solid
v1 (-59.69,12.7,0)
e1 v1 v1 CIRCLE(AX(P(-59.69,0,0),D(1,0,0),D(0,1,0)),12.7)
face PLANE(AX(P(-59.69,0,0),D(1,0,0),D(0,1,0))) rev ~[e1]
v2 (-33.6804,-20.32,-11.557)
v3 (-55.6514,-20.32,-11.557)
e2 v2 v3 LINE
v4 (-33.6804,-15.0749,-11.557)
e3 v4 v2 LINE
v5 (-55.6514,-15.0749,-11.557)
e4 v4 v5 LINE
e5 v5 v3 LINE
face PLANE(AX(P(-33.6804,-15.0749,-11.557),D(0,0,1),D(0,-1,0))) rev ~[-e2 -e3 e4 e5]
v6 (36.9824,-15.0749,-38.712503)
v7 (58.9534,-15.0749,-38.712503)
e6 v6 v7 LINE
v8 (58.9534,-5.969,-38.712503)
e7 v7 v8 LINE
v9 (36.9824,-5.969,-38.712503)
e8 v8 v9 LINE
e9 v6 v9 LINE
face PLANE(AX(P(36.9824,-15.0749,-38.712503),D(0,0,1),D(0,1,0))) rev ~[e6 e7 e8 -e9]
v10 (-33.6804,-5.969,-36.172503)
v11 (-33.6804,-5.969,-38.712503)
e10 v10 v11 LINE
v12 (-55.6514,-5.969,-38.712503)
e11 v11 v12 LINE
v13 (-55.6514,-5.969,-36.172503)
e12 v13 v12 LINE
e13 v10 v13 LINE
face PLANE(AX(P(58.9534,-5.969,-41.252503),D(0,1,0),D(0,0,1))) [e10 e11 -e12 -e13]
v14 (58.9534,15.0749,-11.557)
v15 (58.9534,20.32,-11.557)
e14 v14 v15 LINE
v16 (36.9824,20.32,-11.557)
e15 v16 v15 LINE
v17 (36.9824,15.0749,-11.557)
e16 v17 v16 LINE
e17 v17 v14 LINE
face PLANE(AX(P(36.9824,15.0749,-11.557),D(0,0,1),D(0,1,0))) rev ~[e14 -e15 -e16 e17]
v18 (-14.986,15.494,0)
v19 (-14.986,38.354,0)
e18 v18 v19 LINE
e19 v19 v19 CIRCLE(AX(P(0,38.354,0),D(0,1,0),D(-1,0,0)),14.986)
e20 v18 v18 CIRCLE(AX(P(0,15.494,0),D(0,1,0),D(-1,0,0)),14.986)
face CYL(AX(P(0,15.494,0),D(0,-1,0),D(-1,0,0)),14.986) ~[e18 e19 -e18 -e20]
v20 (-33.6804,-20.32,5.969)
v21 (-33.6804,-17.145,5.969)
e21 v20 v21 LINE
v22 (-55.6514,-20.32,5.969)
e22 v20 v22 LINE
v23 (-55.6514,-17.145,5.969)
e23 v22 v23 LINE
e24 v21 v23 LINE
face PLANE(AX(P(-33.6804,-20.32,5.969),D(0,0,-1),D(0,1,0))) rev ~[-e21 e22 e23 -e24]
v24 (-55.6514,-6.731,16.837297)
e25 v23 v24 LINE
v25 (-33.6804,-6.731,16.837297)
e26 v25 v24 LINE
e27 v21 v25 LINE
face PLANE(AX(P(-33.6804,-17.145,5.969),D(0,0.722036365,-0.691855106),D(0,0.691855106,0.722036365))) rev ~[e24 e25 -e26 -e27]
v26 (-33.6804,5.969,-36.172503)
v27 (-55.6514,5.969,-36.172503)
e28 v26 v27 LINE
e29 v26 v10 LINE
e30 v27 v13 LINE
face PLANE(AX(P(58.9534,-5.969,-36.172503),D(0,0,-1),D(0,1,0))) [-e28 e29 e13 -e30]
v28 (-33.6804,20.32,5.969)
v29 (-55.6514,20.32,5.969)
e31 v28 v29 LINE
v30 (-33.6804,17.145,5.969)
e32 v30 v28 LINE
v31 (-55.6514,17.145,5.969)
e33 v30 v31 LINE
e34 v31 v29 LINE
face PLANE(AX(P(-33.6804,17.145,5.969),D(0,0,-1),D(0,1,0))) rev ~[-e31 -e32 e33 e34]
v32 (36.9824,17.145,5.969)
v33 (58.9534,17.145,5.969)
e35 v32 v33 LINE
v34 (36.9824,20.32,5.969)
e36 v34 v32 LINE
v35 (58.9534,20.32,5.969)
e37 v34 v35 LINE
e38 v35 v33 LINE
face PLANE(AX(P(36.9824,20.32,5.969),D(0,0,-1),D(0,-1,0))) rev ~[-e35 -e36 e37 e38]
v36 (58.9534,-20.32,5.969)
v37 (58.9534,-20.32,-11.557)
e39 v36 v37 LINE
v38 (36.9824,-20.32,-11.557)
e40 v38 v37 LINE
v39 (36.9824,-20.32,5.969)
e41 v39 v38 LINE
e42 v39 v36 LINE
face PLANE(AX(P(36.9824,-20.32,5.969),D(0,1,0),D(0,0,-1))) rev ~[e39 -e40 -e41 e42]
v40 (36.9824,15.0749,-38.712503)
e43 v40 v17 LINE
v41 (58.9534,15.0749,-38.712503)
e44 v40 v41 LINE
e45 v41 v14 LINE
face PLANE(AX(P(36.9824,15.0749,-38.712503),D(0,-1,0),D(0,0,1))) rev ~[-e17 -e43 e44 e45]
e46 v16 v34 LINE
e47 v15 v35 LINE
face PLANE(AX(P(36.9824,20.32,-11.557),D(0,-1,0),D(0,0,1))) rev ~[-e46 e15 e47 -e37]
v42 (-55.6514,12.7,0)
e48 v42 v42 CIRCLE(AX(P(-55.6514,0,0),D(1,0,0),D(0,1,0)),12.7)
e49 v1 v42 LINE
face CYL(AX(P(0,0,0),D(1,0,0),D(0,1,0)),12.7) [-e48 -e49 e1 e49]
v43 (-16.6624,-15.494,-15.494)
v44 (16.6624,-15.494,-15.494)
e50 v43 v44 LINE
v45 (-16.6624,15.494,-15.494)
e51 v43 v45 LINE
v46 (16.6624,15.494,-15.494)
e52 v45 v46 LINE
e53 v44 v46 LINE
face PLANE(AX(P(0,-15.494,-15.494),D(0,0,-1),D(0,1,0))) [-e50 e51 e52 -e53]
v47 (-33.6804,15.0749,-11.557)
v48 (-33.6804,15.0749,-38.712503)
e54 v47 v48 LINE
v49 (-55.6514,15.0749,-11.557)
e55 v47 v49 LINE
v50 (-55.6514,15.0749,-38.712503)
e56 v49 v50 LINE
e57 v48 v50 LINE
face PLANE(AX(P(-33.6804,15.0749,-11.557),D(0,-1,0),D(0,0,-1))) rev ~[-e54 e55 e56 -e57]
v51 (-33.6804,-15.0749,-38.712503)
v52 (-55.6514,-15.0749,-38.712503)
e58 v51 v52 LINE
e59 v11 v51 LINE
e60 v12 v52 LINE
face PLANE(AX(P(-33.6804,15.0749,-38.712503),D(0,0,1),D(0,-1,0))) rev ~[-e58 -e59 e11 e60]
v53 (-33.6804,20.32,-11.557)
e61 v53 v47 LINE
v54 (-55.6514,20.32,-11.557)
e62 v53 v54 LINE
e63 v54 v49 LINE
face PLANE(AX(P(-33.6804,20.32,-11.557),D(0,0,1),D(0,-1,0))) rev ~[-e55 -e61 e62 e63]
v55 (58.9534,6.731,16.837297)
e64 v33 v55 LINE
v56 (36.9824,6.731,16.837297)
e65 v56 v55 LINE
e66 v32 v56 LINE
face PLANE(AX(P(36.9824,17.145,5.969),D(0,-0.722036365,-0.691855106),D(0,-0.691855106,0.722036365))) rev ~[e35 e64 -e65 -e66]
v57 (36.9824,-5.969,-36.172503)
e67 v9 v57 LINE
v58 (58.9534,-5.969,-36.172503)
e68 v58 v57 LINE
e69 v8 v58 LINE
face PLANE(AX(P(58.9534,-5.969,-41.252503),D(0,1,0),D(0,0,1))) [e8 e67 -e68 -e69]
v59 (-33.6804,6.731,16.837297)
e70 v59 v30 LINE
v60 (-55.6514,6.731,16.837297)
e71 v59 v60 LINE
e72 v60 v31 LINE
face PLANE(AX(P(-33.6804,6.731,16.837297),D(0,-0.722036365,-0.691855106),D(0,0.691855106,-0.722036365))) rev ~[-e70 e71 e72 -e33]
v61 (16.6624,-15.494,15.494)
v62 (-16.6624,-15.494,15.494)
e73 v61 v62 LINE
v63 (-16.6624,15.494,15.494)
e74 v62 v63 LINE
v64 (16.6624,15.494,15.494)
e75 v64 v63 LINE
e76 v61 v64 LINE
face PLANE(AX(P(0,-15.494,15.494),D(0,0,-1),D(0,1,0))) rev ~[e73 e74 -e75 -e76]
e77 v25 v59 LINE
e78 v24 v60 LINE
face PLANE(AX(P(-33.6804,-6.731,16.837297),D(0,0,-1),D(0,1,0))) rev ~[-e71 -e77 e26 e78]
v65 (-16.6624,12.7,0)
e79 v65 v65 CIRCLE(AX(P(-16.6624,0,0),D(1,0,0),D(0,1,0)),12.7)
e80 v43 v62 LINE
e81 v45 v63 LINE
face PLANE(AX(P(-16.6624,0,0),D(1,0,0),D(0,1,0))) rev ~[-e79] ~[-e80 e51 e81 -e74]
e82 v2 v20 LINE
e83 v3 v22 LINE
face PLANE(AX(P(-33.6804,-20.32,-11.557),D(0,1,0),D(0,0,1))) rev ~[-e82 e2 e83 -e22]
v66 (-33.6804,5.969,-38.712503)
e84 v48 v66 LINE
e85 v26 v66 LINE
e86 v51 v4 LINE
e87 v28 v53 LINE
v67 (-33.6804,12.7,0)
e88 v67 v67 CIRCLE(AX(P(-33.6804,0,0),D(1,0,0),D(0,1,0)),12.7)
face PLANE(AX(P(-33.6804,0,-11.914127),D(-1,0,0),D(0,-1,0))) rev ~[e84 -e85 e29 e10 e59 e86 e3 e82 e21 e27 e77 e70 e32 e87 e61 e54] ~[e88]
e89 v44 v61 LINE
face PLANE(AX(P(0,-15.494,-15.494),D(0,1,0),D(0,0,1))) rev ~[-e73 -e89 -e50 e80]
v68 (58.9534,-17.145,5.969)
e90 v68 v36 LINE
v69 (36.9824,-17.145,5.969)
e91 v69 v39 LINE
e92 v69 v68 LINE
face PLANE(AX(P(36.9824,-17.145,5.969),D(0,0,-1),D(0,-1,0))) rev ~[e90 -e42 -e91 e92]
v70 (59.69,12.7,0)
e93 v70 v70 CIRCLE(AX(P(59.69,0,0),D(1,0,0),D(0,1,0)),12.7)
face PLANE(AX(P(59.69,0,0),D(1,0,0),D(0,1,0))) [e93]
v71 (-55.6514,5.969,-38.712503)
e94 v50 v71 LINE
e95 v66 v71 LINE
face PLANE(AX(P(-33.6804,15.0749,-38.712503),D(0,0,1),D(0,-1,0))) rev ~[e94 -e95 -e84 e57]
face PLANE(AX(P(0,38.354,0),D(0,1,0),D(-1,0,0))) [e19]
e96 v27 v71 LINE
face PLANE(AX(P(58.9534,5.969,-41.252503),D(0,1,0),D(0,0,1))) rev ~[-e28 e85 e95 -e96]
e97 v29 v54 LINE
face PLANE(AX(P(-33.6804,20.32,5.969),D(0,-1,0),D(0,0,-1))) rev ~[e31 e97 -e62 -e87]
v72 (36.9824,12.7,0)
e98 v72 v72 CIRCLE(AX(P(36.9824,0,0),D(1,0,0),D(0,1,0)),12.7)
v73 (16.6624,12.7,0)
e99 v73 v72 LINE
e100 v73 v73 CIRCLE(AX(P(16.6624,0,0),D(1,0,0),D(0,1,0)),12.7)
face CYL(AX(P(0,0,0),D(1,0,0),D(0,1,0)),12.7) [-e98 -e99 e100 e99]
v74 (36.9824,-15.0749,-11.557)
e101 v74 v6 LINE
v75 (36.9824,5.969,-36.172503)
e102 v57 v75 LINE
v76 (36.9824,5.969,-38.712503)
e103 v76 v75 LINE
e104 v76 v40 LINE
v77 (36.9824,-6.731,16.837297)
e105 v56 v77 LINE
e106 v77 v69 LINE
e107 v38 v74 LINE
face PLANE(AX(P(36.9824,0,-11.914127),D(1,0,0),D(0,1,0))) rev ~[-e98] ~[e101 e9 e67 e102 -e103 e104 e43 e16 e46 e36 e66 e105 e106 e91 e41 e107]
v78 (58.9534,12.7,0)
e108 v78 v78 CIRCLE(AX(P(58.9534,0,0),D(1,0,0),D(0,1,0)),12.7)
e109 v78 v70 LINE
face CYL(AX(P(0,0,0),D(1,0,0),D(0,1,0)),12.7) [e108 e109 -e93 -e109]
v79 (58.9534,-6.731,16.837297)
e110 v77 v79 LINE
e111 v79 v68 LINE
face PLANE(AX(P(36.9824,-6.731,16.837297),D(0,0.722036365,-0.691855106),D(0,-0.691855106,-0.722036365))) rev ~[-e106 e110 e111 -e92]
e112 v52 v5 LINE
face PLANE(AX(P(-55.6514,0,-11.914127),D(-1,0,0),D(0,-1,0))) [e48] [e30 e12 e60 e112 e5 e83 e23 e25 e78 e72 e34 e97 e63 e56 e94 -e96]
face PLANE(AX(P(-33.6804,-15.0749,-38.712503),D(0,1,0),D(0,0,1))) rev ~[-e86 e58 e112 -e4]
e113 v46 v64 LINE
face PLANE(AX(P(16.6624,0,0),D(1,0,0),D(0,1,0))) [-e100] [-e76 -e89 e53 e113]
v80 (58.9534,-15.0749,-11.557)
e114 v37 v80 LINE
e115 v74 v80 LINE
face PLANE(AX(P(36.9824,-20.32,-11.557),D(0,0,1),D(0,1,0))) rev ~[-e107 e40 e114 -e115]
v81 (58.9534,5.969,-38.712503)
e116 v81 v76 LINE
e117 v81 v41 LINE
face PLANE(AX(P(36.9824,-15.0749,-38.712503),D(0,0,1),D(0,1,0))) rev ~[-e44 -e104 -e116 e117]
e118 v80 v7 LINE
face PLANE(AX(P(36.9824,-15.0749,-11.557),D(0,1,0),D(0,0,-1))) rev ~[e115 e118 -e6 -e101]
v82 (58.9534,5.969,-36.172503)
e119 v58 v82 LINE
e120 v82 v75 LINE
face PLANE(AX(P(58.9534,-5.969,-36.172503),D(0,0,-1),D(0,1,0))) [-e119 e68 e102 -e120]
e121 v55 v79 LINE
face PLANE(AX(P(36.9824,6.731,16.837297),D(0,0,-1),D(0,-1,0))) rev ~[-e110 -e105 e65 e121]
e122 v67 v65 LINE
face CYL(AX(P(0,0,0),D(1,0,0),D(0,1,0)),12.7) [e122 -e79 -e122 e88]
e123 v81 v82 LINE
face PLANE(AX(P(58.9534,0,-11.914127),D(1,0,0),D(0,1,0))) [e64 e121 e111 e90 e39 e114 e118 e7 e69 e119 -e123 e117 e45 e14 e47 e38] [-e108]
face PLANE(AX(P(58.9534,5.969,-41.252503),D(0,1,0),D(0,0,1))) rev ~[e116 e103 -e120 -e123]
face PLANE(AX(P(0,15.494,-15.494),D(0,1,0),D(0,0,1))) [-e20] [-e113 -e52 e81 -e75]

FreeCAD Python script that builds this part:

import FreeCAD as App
import Part
import Sketcher
from FreeCAD import Vector
Q = App.Units.Quantity


def add_polygon(sketch, points):
    """Adds a closed chain of lines whose ends are joined by coincident constraints."""
    first, n = sketch.GeometryCount, len(points)
    for a, b in zip(points, points[1:] + points[:1]):
        sketch.addGeometry(Part.LineSegment(App.Vector(*a, 0), App.Vector(*b, 0)), False)
    for i in range(n):
        sketch.addConstraint(Sketcher.Constraint("Coincident", first + i, 2, first + (i + 1) % n, 1))

doc = App.newDocument("Part")
body = doc.addObject("PartDesign::Body", "Body")

sketch1 = body.newObject("Sketcher::SketchObject", "Sketch")
sketch1.AttachmentSupport = (doc.getObject("YZ_Plane"), [""])
sketch1.MapMode = "FlatFace"
sketch1.addGeometry(Part.Circle(Vector(0, 0, 0), Vector(0, 0, 1), 13), False)
sketch1.addConstraint(Sketcher.Constraint("Coincident", 0, 3, -1, 1))
sketch1.addConstraint(Sketcher.Constraint("Diameter", 0, Q("1 in")))
pad1 = body.newObject("PartDesign::Pad", "Pad")
pad1.Profile = sketch1
pad1.Length = Q("4.7 in")
pad1.Midplane = True

sketch2 = body.newObject("Sketcher::SketchObject", "Sketch001")
sketch2.AttachmentSupport = (doc.getObject("YZ_Plane"), [""])
sketch2.MapMode = "FlatFace"
add_polygon(sketch2, [(-15, 15), (-15, -15), (15, -15), (15, 15)])
sketch2.addConstraint(Sketcher.Constraint("Vertical", 0))
sketch2.addConstraint(Sketcher.Constraint("Horizontal", 1))
sketch2.addConstraint(Sketcher.Constraint("Vertical", 2))
sketch2.addConstraint(Sketcher.Constraint("Horizontal", 3))
sketch2.addConstraint(Sketcher.Constraint("Symmetric", 0, 2, 2, 2, -1, 1))
sketch2.addConstraint(Sketcher.Constraint("Equal", 3, 0))
sketch2.addConstraint(Sketcher.Constraint("DistanceX", 1, 1, 1, 2, Q("1.22 in")))
pad2 = body.newObject("PartDesign::Pad", "Pad001")
pad2.Profile = sketch2
pad2.Length = Q("1.312 in")
pad2.Midplane = True

sketch3 = body.newObject("Sketcher::SketchObject", "Sketch002")
sketch3.AttachmentSupport = (doc.getObject("YZ_Plane"), [""])
sketch3.MapMode = "FlatFace"
sketch3.AttachmentOffset = App.Placement(Vector(0, 0, 1.456 * 25.4), App.Rotation())
add_polygon(sketch3, [(-20.3, 6), (-20.3, -11.6), (-15.1, -11.6), (-15.1, -38.7), (15.1, -38.7), (15.1, -11.6), (20.3, -11.6), (20.3, 6), (17.1, 6), (6.7, 16.8), (-6.7, 16.8), (-17.1, 6)])
sketch3.addConstraint(Sketcher.Constraint("Vertical", 0))
sketch3.addConstraint(Sketcher.Constraint("Horizontal", 1))
sketch3.addConstraint(Sketcher.Constraint("Vertical", 2))
sketch3.addConstraint(Sketcher.Constraint("Horizontal", 3))
sketch3.addConstraint(Sketcher.Constraint("Vertical", 4))
sketch3.addConstraint(Sketcher.Constraint("Horizontal", 5))
sketch3.addConstraint(Sketcher.Constraint("Vertical", 6))
sketch3.addConstraint(Sketcher.Constraint("Horizontal", 7))
sketch3.addConstraint(Sketcher.Constraint("Horizontal", 9))
sketch3.addConstraint(Sketcher.Constraint("Horizontal", 11))
sketch3.addConstraint(Sketcher.Constraint("Symmetric", 1, 2, 4, 2, -2))
sketch3.addConstraint(Sketcher.Constraint("Symmetric", 7, 2, 10, 2, -2))
sketch3.addConstraint(Sketcher.Constraint("Equal", 1, 5))
sketch3.addConstraint(Sketcher.Constraint("Equal", 8, 10))
sketch3.addConstraint(Sketcher.Constraint("DistanceX", 9, 2, 9, 1, Q("0.53 in")))
sketch3.addConstraint(Sketcher.Constraint("DistanceY", 0, 2, 0, 1, Q("0.69 in")))
sketch3.addConstraint(Sketcher.Constraint("DistanceX", 0, 2, -1, 1, Q("0.8 in")))
sketch3.addConstraint(Sketcher.Constraint("DistanceX", 3, 1, 3, 2, Q("1.187 in")))
sketch3.addConstraint(Sketcher.Constraint("DistanceX", 7, 2, 7, 1, Q("0.125 in")))
sketch3.addConstraint(Sketcher.Constraint("DistanceY", 0, 2, -1, 1, Q("0.455 in")))
sketch3.addConstraint(Sketcher.Constraint("DistanceY", 2, 2, 2, 1, 27.155503))
sketch3.addConstraint(Sketcher.Constraint("Distance", 8, 15.052285))
pad3 = body.newObject("PartDesign::Pad", "Pad002")
pad3.Profile = sketch3
pad3.Length = Q("0.865 in")

sketch4 = body.newObject("Sketcher::SketchObject", "Sketch003")
sketch4.AttachmentSupport = (doc.getObject("YZ_Plane"), [""])
sketch4.MapMode = "FlatFace"
sketch4.AttachmentOffset = App.Placement(Vector(0, 0, -1.326 * 25.4), App.Rotation())
add_polygon(sketch4, [(15.1, -38.7), (-15.1, -38.7), (-15.1, -11.6), (-20.3, -11.6), (-20.3, 6), (-17.1, 6), (-6.7, 16.8), (6.7, 16.8), (17.1, 6), (20.3, 6), (20.3, -11.6), (15.1, -11.6)])
sketch4.addConstraint(Sketcher.Constraint("Horizontal", 0))
sketch4.addConstraint(Sketcher.Constraint("Vertical", 1))
sketch4.addConstraint(Sketcher.Constraint("Horizontal", 2))
sketch4.addConstraint(Sketcher.Constraint("Vertical", 3))
sketch4.addConstraint(Sketcher.Constraint("Horizontal", 4))
sketch4.addConstraint(Sketcher.Constraint("Horizontal", 6))
sketch4.addConstraint(Sketcher.Constraint("Horizontal", 8))
sketch4.addConstraint(Sketcher.Constraint("Vertical", 9))
sketch4.addConstraint(Sketcher.Constraint("Horizontal", 10))
sketch4.addConstraint(Sketcher.Constraint("Vertical", 11))
sketch4.addConstraint(Sketcher.Constraint("Symmetric", 4, 2, 7, 2, -2))
sketch4.addConstraint(Sketcher.Constraint("Symmetric", 2, 2, 9, 2, -2))
sketch4.addConstraint(Sketcher.Constraint("Equal", 2, 10))
sketch4.addConstraint(Sketcher.Constraint("Equal", 5, 7))
sketch4.addConstraint(Sketcher.Constraint("DistanceX", 6, 1, 6, 2, Q("0.53 in")))
sketch4.addConstraint(Sketcher.Constraint("DistanceY", 3, 1, 3, 2, Q("0.69 in")))
sketch4.addConstraint(Sketcher.Constraint("DistanceX", 2, 2, -1, 1, Q("0.8 in")))
sketch4.addConstraint(Sketcher.Constraint("DistanceX", 0, 2, 0, 1, Q("1.187 in")))
sketch4.addConstraint(Sketcher.Constraint("DistanceX", 4, 1, 4, 2, Q("0.125 in")))
sketch4.addConstraint(Sketcher.Constraint("DistanceY", 1, 2, -1, 1, Q("0.455 in")))
sketch4.addConstraint(Sketcher.Constraint("DistanceY", 0, 2, 5, 2, Q("2.187 in")))
sketch4.addConstraint(Sketcher.Constraint("DistanceY", 1, 1, 1, 2, 27.155503))
pad4 = body.newObject("PartDesign::Pad", "Pad003")
pad4.Profile = sketch4
pad4.Length = Q("0.865 in")
pad4.Reversed = True

sketch5 = body.newObject("Sketcher::SketchObject", "Sketch004")
sketch5.AttachmentSupport = (doc.getObject("XZ_Plane"), [""])
sketch5.MapMode = "FlatFace"
sketch5.AttachmentOffset = App.Placement(Vector(0, 0, -0.61 * 25.4), App.Rotation())
sketch5.addGeometry(Part.Circle(Vector(0, 0, 0), Vector(0, 0, 1), 15), False)
sketch5.addConstraint(Sketcher.Constraint("Coincident", 0, 3, -1, 1))
sketch5.addConstraint(Sketcher.Constraint("Diameter", 0, Q("1.18 in")))
pad5 = body.newObject("PartDesign::Pad", "Pad004")
pad5.Profile = sketch5
pad5.Length = Q("0.9 in")
pad5.Reversed = True

sketch6 = body.newObject("Sketcher::SketchObject", "Sketch005")
sketch6.AttachmentSupport = (doc.getObject("YZ_Plane"), [""])
sketch6.MapMode = "FlatFace"
sketch6.AttachmentOffset = App.Placement(Vector(0, 0, 2.321 * 25.4), App.Rotation())
add_polygon(sketch6, [(-6, -36), (-6, -41), (6, -41), (6, -36)])
sketch6.addConstraint(Sketcher.Constraint("Vertical", 0))
sketch6.addConstraint(Sketcher.Constraint("Horizontal", 1))
sketch6.addConstraint(Sketcher.Constraint("Vertical", 2))
sketch6.addConstraint(Sketcher.Constraint("Horizontal", 3))
sketch6.addConstraint(Sketcher.Constraint("DistanceY", 0, 2, 0, 1, Q("0.2 in")))
sketch6.addConstraint(Sketcher.Constraint("DistanceX", 1, 1, 1, 2, Q("0.47 in")))
sketch6.addConstraint(Sketcher.Constraint("DistanceX", 0, 2, -1, 1, Q("0.235 in")))
sketch6.addConstraint(Sketcher.Constraint("DistanceY", 0, 2, -1, 1, 41.252503))
pocket1 = body.newObject("PartDesign::Pocket", "Pocket")
pocket1.Profile = sketch6
pocket1.Type = "ThroughAll"

doc.recompute()
